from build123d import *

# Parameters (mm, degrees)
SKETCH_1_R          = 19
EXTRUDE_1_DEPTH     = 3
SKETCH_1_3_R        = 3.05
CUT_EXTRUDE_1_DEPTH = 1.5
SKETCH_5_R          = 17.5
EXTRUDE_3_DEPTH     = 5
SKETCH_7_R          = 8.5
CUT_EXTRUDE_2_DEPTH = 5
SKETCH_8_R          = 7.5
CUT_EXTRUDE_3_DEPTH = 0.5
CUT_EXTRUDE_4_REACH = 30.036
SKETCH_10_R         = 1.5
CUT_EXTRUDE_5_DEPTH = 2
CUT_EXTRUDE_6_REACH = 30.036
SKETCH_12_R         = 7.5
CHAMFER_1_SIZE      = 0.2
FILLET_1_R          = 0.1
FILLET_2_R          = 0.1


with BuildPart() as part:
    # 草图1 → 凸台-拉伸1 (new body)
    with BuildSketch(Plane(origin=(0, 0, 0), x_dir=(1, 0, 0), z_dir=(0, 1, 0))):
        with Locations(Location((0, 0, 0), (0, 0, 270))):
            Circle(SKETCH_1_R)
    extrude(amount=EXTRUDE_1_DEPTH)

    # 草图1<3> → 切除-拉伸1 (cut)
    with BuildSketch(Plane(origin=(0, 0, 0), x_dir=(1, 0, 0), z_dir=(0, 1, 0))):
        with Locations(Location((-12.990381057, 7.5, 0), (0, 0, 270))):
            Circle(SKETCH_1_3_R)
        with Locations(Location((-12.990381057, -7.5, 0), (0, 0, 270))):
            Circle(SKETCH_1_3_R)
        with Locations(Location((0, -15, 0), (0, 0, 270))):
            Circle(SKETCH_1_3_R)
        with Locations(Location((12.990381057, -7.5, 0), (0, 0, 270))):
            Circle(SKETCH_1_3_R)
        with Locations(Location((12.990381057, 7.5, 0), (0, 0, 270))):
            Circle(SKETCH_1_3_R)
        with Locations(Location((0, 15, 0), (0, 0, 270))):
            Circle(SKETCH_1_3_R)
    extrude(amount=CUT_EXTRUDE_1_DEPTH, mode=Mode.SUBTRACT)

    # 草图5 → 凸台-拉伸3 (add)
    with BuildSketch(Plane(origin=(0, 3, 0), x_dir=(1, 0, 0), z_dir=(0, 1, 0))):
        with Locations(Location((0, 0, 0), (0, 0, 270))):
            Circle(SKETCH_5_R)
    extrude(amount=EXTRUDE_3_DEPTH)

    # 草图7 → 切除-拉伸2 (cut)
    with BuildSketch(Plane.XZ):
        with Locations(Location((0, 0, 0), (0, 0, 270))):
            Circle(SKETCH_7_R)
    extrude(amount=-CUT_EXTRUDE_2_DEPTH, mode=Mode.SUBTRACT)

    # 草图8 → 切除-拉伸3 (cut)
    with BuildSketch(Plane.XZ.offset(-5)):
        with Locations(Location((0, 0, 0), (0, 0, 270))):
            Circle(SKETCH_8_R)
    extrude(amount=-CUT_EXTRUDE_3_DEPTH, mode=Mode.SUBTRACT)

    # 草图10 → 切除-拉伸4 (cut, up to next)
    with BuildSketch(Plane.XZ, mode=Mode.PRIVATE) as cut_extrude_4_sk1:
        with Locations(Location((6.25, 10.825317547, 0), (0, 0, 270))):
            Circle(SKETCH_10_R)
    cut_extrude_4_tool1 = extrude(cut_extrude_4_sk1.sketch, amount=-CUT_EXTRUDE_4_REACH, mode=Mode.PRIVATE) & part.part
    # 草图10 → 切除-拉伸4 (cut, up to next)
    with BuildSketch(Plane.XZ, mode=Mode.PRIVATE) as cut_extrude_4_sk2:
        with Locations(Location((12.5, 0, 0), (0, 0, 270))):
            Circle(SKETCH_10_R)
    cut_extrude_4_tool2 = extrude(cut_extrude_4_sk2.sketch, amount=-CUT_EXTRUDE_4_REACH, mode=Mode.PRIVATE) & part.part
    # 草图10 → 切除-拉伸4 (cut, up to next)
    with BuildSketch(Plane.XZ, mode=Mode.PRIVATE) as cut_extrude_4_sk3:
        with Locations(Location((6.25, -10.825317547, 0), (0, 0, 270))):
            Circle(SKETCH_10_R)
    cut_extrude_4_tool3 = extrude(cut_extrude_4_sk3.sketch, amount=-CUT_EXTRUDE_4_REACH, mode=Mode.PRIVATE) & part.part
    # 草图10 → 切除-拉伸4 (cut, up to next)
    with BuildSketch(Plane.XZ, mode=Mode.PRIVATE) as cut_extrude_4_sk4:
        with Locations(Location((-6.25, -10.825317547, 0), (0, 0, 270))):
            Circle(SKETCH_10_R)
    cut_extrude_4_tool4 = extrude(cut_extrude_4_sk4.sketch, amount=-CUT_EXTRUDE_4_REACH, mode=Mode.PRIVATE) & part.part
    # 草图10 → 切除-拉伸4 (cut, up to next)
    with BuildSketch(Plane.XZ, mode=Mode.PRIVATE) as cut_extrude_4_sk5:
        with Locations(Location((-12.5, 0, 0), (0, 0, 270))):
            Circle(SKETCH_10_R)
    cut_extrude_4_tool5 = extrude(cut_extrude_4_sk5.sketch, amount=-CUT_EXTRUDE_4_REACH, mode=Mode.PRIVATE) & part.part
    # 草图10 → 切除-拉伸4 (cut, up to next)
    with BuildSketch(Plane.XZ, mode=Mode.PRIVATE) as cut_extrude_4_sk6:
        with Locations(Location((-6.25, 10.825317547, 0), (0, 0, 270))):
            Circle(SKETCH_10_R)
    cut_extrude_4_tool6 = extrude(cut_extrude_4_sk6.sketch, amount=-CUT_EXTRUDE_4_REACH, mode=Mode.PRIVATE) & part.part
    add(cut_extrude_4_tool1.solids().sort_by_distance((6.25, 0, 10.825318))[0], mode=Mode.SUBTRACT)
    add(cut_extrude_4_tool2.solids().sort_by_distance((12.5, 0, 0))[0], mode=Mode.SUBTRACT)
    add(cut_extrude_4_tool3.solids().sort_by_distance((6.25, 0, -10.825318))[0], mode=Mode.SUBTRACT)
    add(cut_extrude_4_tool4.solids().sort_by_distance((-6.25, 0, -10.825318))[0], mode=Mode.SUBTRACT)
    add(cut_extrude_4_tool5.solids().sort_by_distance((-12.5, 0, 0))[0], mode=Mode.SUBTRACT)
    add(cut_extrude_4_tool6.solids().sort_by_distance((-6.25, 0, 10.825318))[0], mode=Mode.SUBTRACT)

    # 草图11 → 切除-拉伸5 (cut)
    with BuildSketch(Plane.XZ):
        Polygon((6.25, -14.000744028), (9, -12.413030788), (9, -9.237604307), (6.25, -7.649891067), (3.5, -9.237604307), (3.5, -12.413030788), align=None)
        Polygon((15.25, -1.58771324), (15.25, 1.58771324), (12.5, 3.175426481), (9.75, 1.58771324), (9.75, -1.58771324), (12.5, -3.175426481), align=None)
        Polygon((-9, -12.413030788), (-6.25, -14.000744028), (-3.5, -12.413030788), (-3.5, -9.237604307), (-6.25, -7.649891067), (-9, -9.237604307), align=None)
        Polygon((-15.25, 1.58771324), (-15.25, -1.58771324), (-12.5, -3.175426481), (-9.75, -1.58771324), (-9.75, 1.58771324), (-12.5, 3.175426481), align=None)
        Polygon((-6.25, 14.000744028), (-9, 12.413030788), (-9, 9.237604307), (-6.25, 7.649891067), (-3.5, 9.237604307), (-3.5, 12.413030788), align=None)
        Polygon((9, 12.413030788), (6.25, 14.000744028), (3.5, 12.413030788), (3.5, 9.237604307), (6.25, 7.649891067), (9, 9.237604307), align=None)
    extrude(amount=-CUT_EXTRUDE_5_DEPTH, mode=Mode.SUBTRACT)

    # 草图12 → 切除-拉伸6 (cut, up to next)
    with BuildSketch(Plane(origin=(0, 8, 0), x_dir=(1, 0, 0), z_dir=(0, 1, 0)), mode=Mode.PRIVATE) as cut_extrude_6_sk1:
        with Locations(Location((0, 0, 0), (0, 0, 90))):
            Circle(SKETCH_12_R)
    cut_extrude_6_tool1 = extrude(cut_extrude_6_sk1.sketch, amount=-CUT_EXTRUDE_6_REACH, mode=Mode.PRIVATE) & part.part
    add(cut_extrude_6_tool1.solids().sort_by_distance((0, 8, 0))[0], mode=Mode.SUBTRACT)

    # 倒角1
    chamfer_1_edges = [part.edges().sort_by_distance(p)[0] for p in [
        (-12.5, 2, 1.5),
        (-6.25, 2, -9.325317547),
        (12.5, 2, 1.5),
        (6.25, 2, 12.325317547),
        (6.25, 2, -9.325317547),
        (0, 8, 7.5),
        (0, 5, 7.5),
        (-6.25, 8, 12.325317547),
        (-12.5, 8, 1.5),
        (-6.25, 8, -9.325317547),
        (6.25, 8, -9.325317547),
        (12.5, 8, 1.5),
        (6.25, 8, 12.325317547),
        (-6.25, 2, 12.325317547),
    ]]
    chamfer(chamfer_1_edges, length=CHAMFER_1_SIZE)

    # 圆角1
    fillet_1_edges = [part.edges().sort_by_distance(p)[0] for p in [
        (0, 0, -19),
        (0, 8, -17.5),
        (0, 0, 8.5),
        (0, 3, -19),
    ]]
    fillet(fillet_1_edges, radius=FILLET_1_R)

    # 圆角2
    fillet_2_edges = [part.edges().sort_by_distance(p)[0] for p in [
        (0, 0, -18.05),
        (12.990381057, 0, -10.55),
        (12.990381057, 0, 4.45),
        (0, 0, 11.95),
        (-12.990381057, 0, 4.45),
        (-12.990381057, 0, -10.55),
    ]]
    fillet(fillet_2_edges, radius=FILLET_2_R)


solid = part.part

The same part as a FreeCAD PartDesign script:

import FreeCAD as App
import Part
import Sketcher
Q = App.Units.Quantity


def edges_at(feature, points):
    """Names of the edges that pass closest to the given points."""
    edges = feature.Shape.Edges
    near = lambda p: min(range(len(edges)), key=lambda i: edges[i].distToShape(Part.Vertex(*p))[0])
    return sorted({f"Edge{near(p) + 1}" for p in points})


def add_polygon(sketch, points):
    """Adds a closed chain of lines whose ends are joined by coincident constraints."""
    first, n = sketch.GeometryCount, len(points)
    for a, b in zip(points, points[1:] + points[:1]):
        sketch.addGeometry(Part.LineSegment(App.Vector(*a, 0), App.Vector(*b, 0)), False)
    for i in range(n):
        sketch.addConstraint(Sketcher.Constraint("Coincident", first + i, 2, first + (i + 1) % n, 1))

doc = App.newDocument("Part")
body = doc.addObject("PartDesign::Body", "Body")

# Sketch on XZ plane
sketch1 = body.newObject("Sketcher::SketchObject", "Sketch")
sketch1.AttachmentSupport = (doc.getObject("XZ_Plane"), [""])
sketch1.MapMode = "FlatFace"
sketch1.addGeometry(Part.Circle(App.Vector(0, 0, 0), App.Vector(0, 0, 1), 19), False)
sketch1.addConstraint([
    Sketcher.Constraint("Coincident", 0, 3, -1, 1),
    Sketcher.Constraint("Diameter", 0, Q("38 mm")),
])
pad1 = body.newObject("PartDesign::Pad", "Pad")
pad1.Profile = sketch1
pad1.Length = 3
pad1.Reversed = True

# Sketch on XZ plane
sketch2 = body.newObject("Sketcher::SketchObject", "Sketch001")
sketch2.AttachmentSupport = (doc.getObject("XZ_Plane"), [""])
sketch2.MapMode = "FlatFace"
sketch2.addGeometry([
    Part.Circle(App.Vector(-13, -7.5, 0), App.Vector(0, 0, 1), 3),  # 0
    Part.Circle(App.Vector(-13, 7.5, 0), App.Vector(0, 0, 1), 3),  # 1
    Part.Circle(App.Vector(0, 15, 0), App.Vector(0, 0, 1), 3),  # 2
    Part.Circle(App.Vector(13, 7.5, 0), App.Vector(0, 0, 1), 3),  # 3
    Part.Circle(App.Vector(13, -7.5, 0), App.Vector(0, 0, 1), 3),  # 4
    Part.Circle(App.Vector(0, -15, 0), App.Vector(0, 0, 1), 3),  # 5
], False)
sketch2.addConstraint([
    Sketcher.Constraint("Equal", 0, 1),
    Sketcher.Constraint("Equal", 1, 2),
    Sketcher.Constraint("Equal", 2, 3),
    Sketcher.Constraint("Equal", 3, 4),
    Sketcher.Constraint("Equal", 4, 5),
    Sketcher.Constraint("Symmetric", 0, 3, 3, 3, -1, 1),
    Sketcher.Constraint("Symmetric", 1, 3, 4, 3, -1, 1),
    Sketcher.Constraint("Symmetric", 2, 3, 5, 3, -1, 1),
    Sketcher.Constraint("Symmetric", 1, 3, 3, 3, -2),
    Sketcher.Constraint("PointOnObject", 2, 3, -2),
    Sketcher.Constraint("Diameter", 0, Q("6.1 mm")),
    Sketcher.Constraint("DistanceY", -1, 1, 2, 3, Q("15 mm")),
    Sketcher.Constraint("DistanceY", 0, 3, 1, 3, Q("15 mm")),
    Sketcher.Constraint("DistanceX", 0, 3, -1, 1, Q("12.990381 mm")),
])
pocket1 = body.newObject("PartDesign::Pocket", "Pocket")
pocket1.Profile = sketch2
pocket1.Length = 1.5

# Sketch on XZ plane
sketch3 = body.newObject("Sketcher::SketchObject", "Sketch002")
sketch3.AttachmentSupport = (doc.getObject("XZ_Plane"), [""])
sketch3.MapMode = "FlatFace"
sketch3.AttachmentOffset = App.Placement(App.Vector(0, 0, -3), App.Rotation())
sketch3.addGeometry(Part.Circle(App.Vector(0, 0, 0), App.Vector(0, 0, 1), 18), False)
sketch3.addConstraint([
    Sketcher.Constraint("Coincident", 0, 3, -1, 1),
    Sketcher.Constraint("Diameter", 0, Q("35 mm")),
])
pad2 = body.newObject("PartDesign::Pad", "Pad001")
pad2.Profile = sketch3
pad2.Length = 5
pad2.Reversed = True

# Sketch on XZ plane
sketch4 = body.newObject("Sketcher::SketchObject", "Sketch003")
sketch4.AttachmentSupport = (doc.getObject("XZ_Plane"), [""])
sketch4.MapMode = "FlatFace"
sketch4.addGeometry(Part.Circle(App.Vector(0, 0, 0), App.Vector(0, 0, 1), 8), False)
sketch4.addConstraint([
    Sketcher.Constraint("Coincident", 0, 3, -1, 1),
    Sketcher.Constraint("Diameter", 0, Q("17 mm")),
])
pocket2 = body.newObject("PartDesign::Pocket", "Pocket001")
pocket2.Profile = sketch4
pocket2.Length = 5

# Sketch on XZ plane
sketch5 = body.newObject("Sketcher::SketchObject", "Sketch004")
sketch5.AttachmentSupport = (doc.getObject("XZ_Plane"), [""])
sketch5.MapMode = "FlatFace"
sketch5.AttachmentOffset = App.Placement(App.Vector(0, 0, -5), App.Rotation())
sketch5.addGeometry(Part.Circle(App.Vector(0, 0, 0), App.Vector(0, 0, 1), 8), False)
sketch5.addConstraint([
    Sketcher.Constraint("Coincident", 0, 3, -1, 1),
    Sketcher.Constraint("Diameter", 0, Q("15 mm")),
])
pocket3 = body.newObject("PartDesign::Pocket", "Pocket002")
pocket3.Profile = sketch5
pocket3.Length = 0.5

# Sketch on XZ plane
sketch6 = body.newObject("Sketcher::SketchObject", "Sketch005")
sketch6.AttachmentSupport = (doc.getObject("XZ_Plane"), [""])
sketch6.MapMode = "FlatFace"
sketch6.addGeometry(Part.Circle(App.Vector(6.2, 10.8, 0), App.Vector(0, 0, 1), 1.5), False)
sketch6.addConstraint([
    Sketcher.Constraint("Diameter", 0, Q("3 mm")),
    Sketcher.Constraint("DistanceX", -1, 1, 0, 3, Q("6.25 mm")),
    Sketcher.Constraint("DistanceY", -1, 1, 0, 3, Q("10.825318 mm")),
])
pocket4 = body.newObject("PartDesign::Pocket", "Pocket003")
pocket4.Profile = sketch6
pocket4.Type = "UpToFirst"

# Sketch on XZ plane
sketch7 = body.newObject("Sketcher::SketchObject", "Sketch006")
sketch7.AttachmentSupport = (doc.getObject("XZ_Plane"), [""])
sketch7.MapMode = "FlatFace"
sketch7.addGeometry(Part.Circle(App.Vector(12.5, 0, 0), App.Vector(0, 0, 1), 1.5), False)
sketch7.addConstraint([
    Sketcher.Constraint("PointOnObject", 0, 3, -1),
    Sketcher.Constraint("Diameter", 0, Q("3 mm")),
    Sketcher.Constraint("DistanceX", -1, 1, 0, 3, Q("12.5 mm")),
])
pocket5 = body.newObject("PartDesign::Pocket", "Pocket004")
pocket5.Profile = sketch7
pocket5.Type = "UpToFirst"

# Sketch on XZ plane
sketch8 = body.newObject("Sketcher::SketchObject", "Sketch007")
sketch8.AttachmentSupport = (doc.getObject("XZ_Plane"), [""])
sketch8.MapMode = "FlatFace"
sketch8.addGeometry(Part.Circle(App.Vector(6.2, -10.8, 0), App.Vector(0, 0, 1), 1.5), False)
sketch8.addConstraint([
    Sketcher.Constraint("Diameter", 0, Q("3 mm")),
    Sketcher.Constraint("DistanceX", -1, 1, 0, 3, Q("6.25 mm")),
    Sketcher.Constraint("DistanceY", 0, 3, -1, 1, Q("10.825318 mm")),
])
pocket6 = body.newObject("PartDesign::Pocket", "Pocket005")
pocket6.Profile = sketch8
pocket6.Type = "UpToFirst"

# Sketch on XZ plane
sketch9 = body.newObject("Sketcher::SketchObject", "Sketch008")
sketch9.AttachmentSupport = (doc.getObject("XZ_Plane"), [""])
sketch9.MapMode = "FlatFace"
sketch9.addGeometry(Part.Circle(App.Vector(-6.2, -10.8, 0), App.Vector(0, 0, 1), 1.5), False)
sketch9.addConstraint([
    Sketcher.Constraint("Diameter", 0, Q("3 mm")),
    Sketcher.Constraint("DistanceX", 0, 3, -1, 1, Q("6.25 mm")),
    Sketcher.Constraint("DistanceY", 0, 3, -1, 1, Q("10.825318 mm")),
])
pocket7 = body.newObject("PartDesign::Pocket", "Pocket006")
pocket7.Profile = sketch9
pocket7.Type = "UpToFirst"

# Sketch on XZ plane
sketch10 = body.newObject("Sketcher::SketchObject", "Sketch009")
sketch10.AttachmentSupport = (doc.getObject("XZ_Plane"), [""])
sketch10.MapMode = "FlatFace"
sketch10.addGeometry(Part.Circle(App.Vector(-12.5, 0, 0), App.Vector(0, 0, 1), 1.5), False)
sketch10.addConstraint([
    Sketcher.Constraint("PointOnObject", 0, 3, -1),
    Sketcher.Constraint("Diameter", 0, Q("3 mm")),
    Sketcher.Constraint("DistanceX", 0, 3, -1, 1, Q("12.5 mm")),
])
pocket8 = body.newObject("PartDesign::Pocket", "Pocket007")
pocket8.Profile = sketch10
pocket8.Type = "UpToFirst"

# Sketch on XZ plane
sketch11 = body.newObject("Sketcher::SketchObject", "Sketch010")
sketch11.AttachmentSupport = (doc.getObject("XZ_Plane"), [""])
sketch11.MapMode = "FlatFace"
sketch11.addGeometry(Part.Circle(App.Vector(-6.2, 10.8, 0), App.Vector(0, 0, 1), 1.5), False)
sketch11.addConstraint([
    Sketcher.Constraint("Diameter", 0, Q("3 mm")),
    Sketcher.Constraint("DistanceX", 0, 3, -1, 1, Q("6.25 mm")),
    Sketcher.Constraint("DistanceY", -1, 1, 0, 3, Q("10.825318 mm")),
])
pocket9 = body.newObject("PartDesign::Pocket", "Pocket008")
pocket9.Profile = sketch11
pocket9.Type = "UpToFirst"

# Sketch on XZ plane
sketch12 = body.newObject("Sketcher::SketchObject", "Sketch011")
sketch12.AttachmentSupport = (doc.getObject("XZ_Plane"), [""])
sketch12.MapMode = "FlatFace"
add_polygon(sketch12, [(6.2, -14), (9, -12.4), (9, -9.2), (6.2, -7.6), (3.5, -9.2), (3.5, -12.4)])  # lines 0-5
add_polygon(sketch12, [(15.2, -1.6), (15.2, 1.6), (12.5, 3.2), (9.8, 1.6), (9.8, -1.6), (12.5, -3.2)])  # lines 6-11
add_polygon(sketch12, [(-9, -12.4), (-6.2, -14), (-3.5, -12.4), (-3.5, -9.2), (-6.2, -7.6), (-9, -9.2)])  # lines 12-17
add_polygon(sketch12, [(-15.2, 1.6), (-15.2, -1.6), (-12.5, -3.2), (-9.8, -1.6), (-9.8, 1.6), (-12.5, 3.2)])  # lines 18-23
add_polygon(sketch12, [(-6.2, 14), (-9, 12.4), (-9, 9.2), (-6.2, 7.6), (-3.5, 9.2), (-3.5, 12.4)])  # lines 24-29
add_polygon(sketch12, [(9, 12.4), (6.2, 14), (3.5, 12.4), (3.5, 9.2), (6.2, 7.6), (9, 9.2)])  # lines 30-35
sketch12.addConstraint([
    Sketcher.Constraint("Vertical", 1),
    Sketcher.Constraint("Vertical", 4),
    Sketcher.Constraint("Vertical", 6),
    Sketcher.Constraint("Vertical", 9),
    Sketcher.Constraint("Vertical", 14),
    Sketcher.Constraint("Vertical", 17),
    Sketcher.Constraint("Vertical", 18),
    Sketcher.Constraint("Vertical", 21),
    Sketcher.Constraint("Vertical", 25),
    Sketcher.Constraint("Vertical", 28),
    Sketcher.Constraint("Vertical", 32),
    Sketcher.Constraint("Vertical", 35),
    Sketcher.Constraint("Symmetric", 6, 2, 18, 2, -1, 1),
    Sketcher.Constraint("Symmetric", 7, 2, 19, 2, -1, 1),
    Sketcher.Constraint("Symmetric", 8, 2, 20, 2, -1, 1),
    Sketcher.Constraint("Symmetric", 10, 2, 22, 2, -1, 1),
    Sketcher.Constraint("Symmetric", 0, 2, 24, 2, -1, 1),
    Sketcher.Constraint("Symmetric", 2, 2, 26, 2, -1, 1),
    Sketcher.Constraint("Symmetric", 3, 2, 27, 2, -1, 1),
    Sketcher.Constraint("Symmetric", 5, 2, 29, 2, -1, 1),
    Sketcher.Constraint("Symmetric", 12, 2, 30, 2, -1, 1),
    Sketcher.Constraint("Symmetric", 13, 2, 31, 2, -1, 1),
    Sketcher.Constraint("Symmetric", 15, 2, 33, 2, -1, 1),
    Sketcher.Constraint("Symmetric", 16, 2, 34, 2, -1, 1),
    Sketcher.Constraint("Symmetric", 5, 2, 12, 2, -2),
    Sketcher.Constraint("Symmetric", 4, 2, 13, 2, -2),
    Sketcher.Constraint("Symmetric", 2, 2, 15, 2, -2),
    Sketcher.Constraint("Symmetric", 1, 2, 16, 2, -2),
    Sketcher.Constraint("Symmetric", 10, 2, 19, 2, -2),
    Sketcher.Constraint("Parallel", 0, 3),
    Sketcher.Constraint("Parallel", 2, 5),
    Sketcher.Constraint("Parallel", 5, 7),
    Sketcher.Constraint("Parallel", 3, 8),
    Sketcher.Constraint("Parallel", 7, 10),
    Sketcher.Constraint("Parallel", 8, 11),
    Sketcher.Constraint("Parallel", 10, 12),
    Sketcher.Constraint("Parallel", 11, 13),
    Sketcher.Constraint("Parallel", 12, 15),
    Sketcher.Constraint("Parallel", 19, 22),
    Sketcher.Constraint("Parallel", 20, 23),
    Sketcher.Constraint("Parallel", 22, 26),
    Sketcher.Constraint("Parallel", 26, 29),
    Sketcher.Constraint("Parallel", 29, 30),
    Sketcher.Constraint("Parallel", 30, 33),
    Sketcher.Constraint("Horizontal", 1, 2, 3, 2),
    Sketcher.Constraint("Horizontal", 0, 2, 4, 2),
    Sketcher.Constraint("Horizontal", 6, 2, 8, 2),
    Sketcher.Constraint("Equal", 4, 6),
    Sketcher.Constraint("Equal", 5, 7),
    Sketcher.Constraint("Angle", 0, Q("30 deg")),
    Sketcher.Constraint("DistanceX", -1, 1, 0, 2, Q("9 mm")),
    Sketcher.Constraint("DistanceX", 2, 2, 6, 2, Q("9 mm")),
    Sketcher.Constraint("DistanceX", 13, 2, 4, 2, Q("7 mm")),
    Sketcher.Constraint("DistanceY", 1, 1, 1, 2, Q("3.175426 mm")),
    Sketcher.Constraint("DistanceY", 0, 2, -1, 1, Q("12.413031 mm")),
])
pocket10 = body.newObject("PartDesign::Pocket", "Pocket009")
pocket10.Profile = sketch12
pocket10.Length = 2

# Sketch on XZ plane
sketch13 = body.newObject("Sketcher::SketchObject", "Sketch012")
sketch13.AttachmentSupport = (doc.getObject("XZ_Plane"), [""])
sketch13.MapMode = "FlatFace"
sketch13.AttachmentOffset = App.Placement(App.Vector(0, 0, -8), App.Rotation())
sketch13.addGeometry(Part.Circle(App.Vector(0, 0, 0), App.Vector(0, 0, 1), 8), False)
sketch13.addConstraint([
    Sketcher.Constraint("Coincident", 0, 3, -1, 1),
    Sketcher.Constraint("Diameter", 0, Q("15 mm")),
])
pocket11 = body.newObject("PartDesign::Pocket", "Pocket010")
pocket11.Profile = sketch13
pocket11.Type = "UpToFirst"
pocket11.Reversed = True
doc.recompute()

chamfer = body.newObject("PartDesign::Chamfer", "Chamfer")
chamfer.Base = (pocket11, edges_at(pocket11, [
    (-12.5, 2, 1.5),
    (-6.25, 2, -9.325),
    (12.5, 2, 1.5),
    (6.25, 2, 12.325),
    (6.25, 2, -9.325),
    (0, 8, 7.5),
    (0, 5, 7.5),
    (-6.25, 8, 12.325),
    (-12.5, 8, 1.5),
    (-6.25, 8, -9.325),
    (6.25, 8, -9.325),
    (12.5, 8, 1.5),
    (6.25, 8, 12.325),
    (-6.25, 2, 12.325),
]))
chamfer.Size = 0.2
doc.recompute()

fillet = body.newObject("PartDesign::Fillet", "Fillet")
fillet.Base = (chamfer, edges_at(chamfer, [
    (0, 0, -19),
    (0, 8, -17.5),
    (0, 0, 8.5),
    (0, 3, -19),
]))
fillet.Radius = 0.1
doc.recompute()

fillet2 = body.newObject("PartDesign::Fillet", "Fillet001")
fillet2.Base = (fillet, edges_at(fillet, [
    (0, 0, -18.05),
    (12.99, 0, -10.55),
    (12.99, 0, 4.45),
    (0, 0, 11.95),
    (-12.99, 0, 4.45),
    (-12.99, 0, -10.55),
]))
fillet2.Radius = 0.1

doc.recompute()
